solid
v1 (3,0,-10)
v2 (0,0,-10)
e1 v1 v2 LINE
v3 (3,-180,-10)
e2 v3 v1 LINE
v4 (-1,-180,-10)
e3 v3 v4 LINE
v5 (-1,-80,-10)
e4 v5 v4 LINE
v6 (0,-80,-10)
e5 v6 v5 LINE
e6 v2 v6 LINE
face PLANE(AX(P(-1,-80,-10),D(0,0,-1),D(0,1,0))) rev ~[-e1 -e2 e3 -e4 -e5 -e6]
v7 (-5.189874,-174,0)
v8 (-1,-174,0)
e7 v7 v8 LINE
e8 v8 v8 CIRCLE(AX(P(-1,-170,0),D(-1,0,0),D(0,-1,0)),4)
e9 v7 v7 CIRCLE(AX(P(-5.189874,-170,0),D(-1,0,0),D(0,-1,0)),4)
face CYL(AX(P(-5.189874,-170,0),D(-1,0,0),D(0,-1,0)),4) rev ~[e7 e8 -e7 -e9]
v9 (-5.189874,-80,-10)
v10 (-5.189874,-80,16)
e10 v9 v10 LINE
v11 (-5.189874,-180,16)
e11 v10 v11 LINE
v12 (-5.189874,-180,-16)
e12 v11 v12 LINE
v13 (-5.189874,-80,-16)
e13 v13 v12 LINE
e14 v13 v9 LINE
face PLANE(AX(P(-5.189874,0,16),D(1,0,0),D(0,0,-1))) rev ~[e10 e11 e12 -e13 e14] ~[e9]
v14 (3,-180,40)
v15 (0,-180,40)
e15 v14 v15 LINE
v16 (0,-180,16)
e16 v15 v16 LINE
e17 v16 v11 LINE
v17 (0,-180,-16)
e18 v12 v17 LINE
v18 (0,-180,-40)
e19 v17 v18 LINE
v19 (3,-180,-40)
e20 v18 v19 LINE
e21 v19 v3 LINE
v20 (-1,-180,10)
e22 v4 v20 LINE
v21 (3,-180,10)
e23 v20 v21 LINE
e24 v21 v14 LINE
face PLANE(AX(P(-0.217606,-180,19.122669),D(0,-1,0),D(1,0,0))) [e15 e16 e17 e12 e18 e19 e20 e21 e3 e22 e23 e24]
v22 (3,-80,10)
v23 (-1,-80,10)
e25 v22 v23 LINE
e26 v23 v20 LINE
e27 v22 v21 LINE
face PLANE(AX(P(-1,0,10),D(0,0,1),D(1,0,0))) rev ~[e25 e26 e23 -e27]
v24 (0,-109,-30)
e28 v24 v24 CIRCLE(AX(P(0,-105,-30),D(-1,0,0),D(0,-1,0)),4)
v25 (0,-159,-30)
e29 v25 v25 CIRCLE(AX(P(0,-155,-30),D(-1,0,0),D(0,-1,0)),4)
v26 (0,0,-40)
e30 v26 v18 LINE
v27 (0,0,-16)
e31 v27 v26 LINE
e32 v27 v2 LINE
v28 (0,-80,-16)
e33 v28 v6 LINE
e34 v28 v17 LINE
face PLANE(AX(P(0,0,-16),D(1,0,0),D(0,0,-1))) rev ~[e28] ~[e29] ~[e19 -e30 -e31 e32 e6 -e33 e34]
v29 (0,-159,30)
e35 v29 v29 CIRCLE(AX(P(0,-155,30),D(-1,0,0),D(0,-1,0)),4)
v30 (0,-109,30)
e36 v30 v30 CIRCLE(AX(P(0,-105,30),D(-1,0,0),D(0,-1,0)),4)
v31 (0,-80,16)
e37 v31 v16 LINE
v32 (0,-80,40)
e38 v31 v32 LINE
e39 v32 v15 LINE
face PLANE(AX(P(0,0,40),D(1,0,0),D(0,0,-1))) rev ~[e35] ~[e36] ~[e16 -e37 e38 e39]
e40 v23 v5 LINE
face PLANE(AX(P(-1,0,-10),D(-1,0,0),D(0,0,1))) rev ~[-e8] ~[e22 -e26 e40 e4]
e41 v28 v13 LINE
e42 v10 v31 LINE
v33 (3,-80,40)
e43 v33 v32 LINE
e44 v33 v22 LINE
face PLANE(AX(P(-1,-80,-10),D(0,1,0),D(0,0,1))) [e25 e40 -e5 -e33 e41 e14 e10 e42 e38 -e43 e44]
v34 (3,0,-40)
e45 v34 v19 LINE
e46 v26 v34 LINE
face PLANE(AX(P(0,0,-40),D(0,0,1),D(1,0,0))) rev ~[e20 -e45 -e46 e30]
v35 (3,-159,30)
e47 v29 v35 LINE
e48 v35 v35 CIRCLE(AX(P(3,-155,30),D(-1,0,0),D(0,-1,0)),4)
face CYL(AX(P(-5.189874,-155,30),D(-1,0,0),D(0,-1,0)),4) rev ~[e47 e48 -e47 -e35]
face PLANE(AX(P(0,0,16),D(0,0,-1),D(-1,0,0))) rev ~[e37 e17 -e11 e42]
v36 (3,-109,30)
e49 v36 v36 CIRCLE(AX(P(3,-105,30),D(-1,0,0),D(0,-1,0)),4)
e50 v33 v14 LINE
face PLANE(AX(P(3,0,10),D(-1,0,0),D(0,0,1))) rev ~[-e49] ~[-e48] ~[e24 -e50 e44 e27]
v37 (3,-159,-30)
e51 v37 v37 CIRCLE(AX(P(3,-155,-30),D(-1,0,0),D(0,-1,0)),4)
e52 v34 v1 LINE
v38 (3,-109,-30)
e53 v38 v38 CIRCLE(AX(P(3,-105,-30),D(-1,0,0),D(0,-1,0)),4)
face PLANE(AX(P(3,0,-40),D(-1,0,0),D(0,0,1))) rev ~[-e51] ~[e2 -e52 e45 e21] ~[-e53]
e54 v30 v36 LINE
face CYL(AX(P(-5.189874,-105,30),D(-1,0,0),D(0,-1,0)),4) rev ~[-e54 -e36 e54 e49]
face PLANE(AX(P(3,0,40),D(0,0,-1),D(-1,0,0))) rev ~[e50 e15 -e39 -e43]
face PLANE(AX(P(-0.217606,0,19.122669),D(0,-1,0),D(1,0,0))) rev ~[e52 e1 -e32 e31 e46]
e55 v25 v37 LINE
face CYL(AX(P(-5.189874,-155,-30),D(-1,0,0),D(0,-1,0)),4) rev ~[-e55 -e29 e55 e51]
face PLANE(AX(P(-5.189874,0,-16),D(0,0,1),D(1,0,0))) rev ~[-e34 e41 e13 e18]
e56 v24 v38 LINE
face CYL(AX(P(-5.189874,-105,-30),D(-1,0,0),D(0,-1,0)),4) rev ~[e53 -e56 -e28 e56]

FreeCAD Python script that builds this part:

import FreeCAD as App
import Part
import Sketcher

doc = App.newDocument("Part")
body = doc.addObject("PartDesign::Body", "Body")

sketch1 = doc.addObject("Sketcher::SketchObject", "Sketch")
body.addObject(sketch1)
sketch1.AttachmentSupport = (doc.XZ_Plane, [""])
sketch1.MapMode = "FlatFace"
sketch1.addGeometry(Part.LineSegment(App.Vector(3, 40, 0), App.Vector(0, 40, 0)), False)
sketch1.addGeometry(Part.LineSegment(App.Vector(0, 40, 0), App.Vector(0, 16, 0)), False)
sketch1.addGeometry(Part.LineSegment(App.Vector(0, 16, 0), App.Vector(-5.2, 16, 0)), False)
sketch1.addGeometry(Part.LineSegment(App.Vector(-5.2, 16, 0), App.Vector(-5.2, -16, 0)), False)
sketch1.addGeometry(Part.LineSegment(App.Vector(-5.2, -16, 0), App.Vector(0, -16, 0)), False)
sketch1.addGeometry(Part.LineSegment(App.Vector(0, -16, 0), App.Vector(0, -40, 0)), False)
sketch1.addGeometry(Part.LineSegment(App.Vector(0, -40, 0), App.Vector(3, -40, 0)), False)
sketch1.addGeometry(Part.LineSegment(App.Vector(3, -40, 0), App.Vector(3, -10, 0)), False)
sketch1.addGeometry(Part.LineSegment(App.Vector(3, -10, 0), App.Vector(-1, -10, 0)), False)
sketch1.addGeometry(Part.LineSegment(App.Vector(-1, -10, 0), App.Vector(-1, 10, 0)), False)
sketch1.addGeometry(Part.LineSegment(App.Vector(-1, 10, 0), App.Vector(3, 10, 0)), False)
sketch1.addGeometry(Part.LineSegment(App.Vector(3, 10, 0), App.Vector(3, 40, 0)), False)
sketch1.addConstraint(Sketcher.Constraint("Coincident", 0, 2, 1, 1))
sketch1.addConstraint(Sketcher.Constraint("Coincident", 1, 2, 2, 1))
sketch1.addConstraint(Sketcher.Constraint("Coincident", 2, 2, 3, 1))
sketch1.addConstraint(Sketcher.Constraint("Coincident", 3, 2, 4, 1))
sketch1.addConstraint(Sketcher.Constraint("Coincident", 4, 2, 5, 1))
sketch1.addConstraint(Sketcher.Constraint("Coincident", 5, 2, 6, 1))
sketch1.addConstraint(Sketcher.Constraint("Coincident", 6, 2, 7, 1))
sketch1.addConstraint(Sketcher.Constraint("Coincident", 7, 2, 8, 1))
sketch1.addConstraint(Sketcher.Constraint("Coincident", 8, 2, 9, 1))
sketch1.addConstraint(Sketcher.Constraint("Coincident", 9, 2, 10, 1))
sketch1.addConstraint(Sketcher.Constraint("Coincident", 10, 2, 11, 1))
sketch1.addConstraint(Sketcher.Constraint("Coincident", 11, 2, 0, 1))
sketch1.addConstraint(Sketcher.Constraint("Horizontal", 0))
sketch1.addConstraint(Sketcher.Constraint("Vertical", 1))
sketch1.addConstraint(Sketcher.Constraint("Horizontal", 2))
sketch1.addConstraint(Sketcher.Constraint("Vertical", 3))
sketch1.addConstraint(Sketcher.Constraint("Horizontal", 4))
sketch1.addConstraint(Sketcher.Constraint("Vertical", 5))
sketch1.addConstraint(Sketcher.Constraint("Horizontal", 6))
sketch1.addConstraint(Sketcher.Constraint("Vertical", 7))
sketch1.addConstraint(Sketcher.Constraint("Horizontal", 8))
sketch1.addConstraint(Sketcher.Constraint("Vertical", 9))
sketch1.addConstraint(Sketcher.Constraint("Horizontal", 10))
sketch1.addConstraint(Sketcher.Constraint("Vertical", 11))
sketch1.addConstraint(Sketcher.Constraint("Symmetric", 1, 2, 4, 2, -1, 1))
sketch1.addConstraint(Sketcher.Constraint("Symmetric", 0, 2, 5, 2, -1))
sketch1.addConstraint(Sketcher.Constraint("Symmetric", 7, 2, 10, 2, -1))
sketch1.addConstraint(Sketcher.Constraint("DistanceX", 0, 2, 0, 1, 3.0))
sketch1.addConstraint(Sketcher.Constraint("DistanceX", 8, 2, 8, 1, 4.0))
sketch1.addConstraint(Sketcher.Constraint("DistanceY", 1, 2, 1, 1, 24.0))
sketch1.addConstraint(Sketcher.Constraint("DistanceY", 3, 2, 3, 1, 32.0))
sketch1.addConstraint(Sketcher.Constraint("DistanceY", 7, 1, 7, 2, 30.0))
sketch1.addConstraint(Sketcher.Constraint("DistanceX", 2, 2, 2, 1, 5.189874))
pad1 = doc.addObject("PartDesign::Pad", "Pad")
body.addObject(pad1)
pad1.Profile = sketch1
pad1.Length = 180

sketch2 = doc.addObject("Sketcher::SketchObject", "Sketch001")
body.addObject(sketch2)
sketch2.AttachmentSupport = (doc.YZ_Plane, [""])
sketch2.MapMode = "FlatFace"
sketch2.AttachmentOffset = App.Placement(App.Vector(0, 0, -5.189874), App.Rotation())
sketch2.addGeometry(Part.Circle(App.Vector(-170, 0, 0), App.Vector(0, 0, 1), 4), False)
sketch2.addGeometry(Part.Circle(App.Vector(-155, 30, 0), App.Vector(0, 0, 1), 4), False)
sketch2.addGeometry(Part.Circle(App.Vector(-105, 30, 0), App.Vector(0, 0, 1), 4), False)
sketch2.addGeometry(Part.Circle(App.Vector(-155, -30, 0), App.Vector(0, 0, 1), 4), False)
sketch2.addGeometry(Part.Circle(App.Vector(-105, -30, 0), App.Vector(0, 0, 1), 4), False)
sketch2.addConstraint(Sketcher.Constraint("Equal", 0, 1))
sketch2.addConstraint(Sketcher.Constraint("Equal", 1, 2))
sketch2.addConstraint(Sketcher.Constraint("Equal", 2, 3))
sketch2.addConstraint(Sketcher.Constraint("Equal", 3, 4))
sketch2.addConstraint(Sketcher.Constraint("Symmetric", 1, 3, 3, 3, -1))
sketch2.addConstraint(Sketcher.Constraint("Symmetric", 2, 3, 4, 3, -1))
sketch2.addConstraint(Sketcher.Constraint("PointOnObject", 0, 3, -1))
sketch2.addConstraint(Sketcher.Constraint("Horizontal", 1, 3, 2, 3))
sketch2.addConstraint(Sketcher.Constraint("Diameter", 0, 8.0))
sketch2.addConstraint(Sketcher.Constraint("DistanceX", 0, 3, -1, 1, 170.0))
sketch2.addConstraint(Sketcher.Constraint("DistanceX", 1, 3, -1, 1, 155.0))
sketch2.addConstraint(Sketcher.Constraint("DistanceY", -1, 1, 1, 3, 30.0))
sketch2.addConstraint(Sketcher.Constraint("DistanceX", 2, 3, -1, 1, 105.0))
pocket1 = doc.addObject("PartDesign::Pocket", "Pocket")
body.addObject(pocket1)
pocket1.Profile = sketch2
pocket1.Length = 25
pocket1.Reversed = True

sketch3 = doc.addObject("Sketcher::SketchObject", "Sketch002")
body.addObject(sketch3)
sketch3.AttachmentSupport = (doc.YZ_Plane, [""])
sketch3.MapMode = "FlatFace"
sketch3.AttachmentOffset = App.Placement(App.Vector(0, 0, -1), App.Rotation())
sketch3.addGeometry(Part.LineSegment(App.Vector(-80, 40, 0), App.Vector(-80, -10, 0)), False)
sketch3.addGeometry(Part.LineSegment(App.Vector(-80, -10, 0), App.Vector(0, -10, 0)), False)
sketch3.addGeometry(Part.LineSegment(App.Vector(0, -10, 0), App.Vector(0, 40, 0)), False)
sketch3.addGeometry(Part.LineSegment(App.Vector(0, 40, 0), App.Vector(-80, 40, 0)), False)
sketch3.addConstraint(Sketcher.Constraint("Coincident", 0, 2, 1, 1))
sketch3.addConstraint(Sketcher.Constraint("Coincident", 1, 2, 2, 1))
sketch3.addConstraint(Sketcher.Constraint("Coincident", 2, 2, 3, 1))
sketch3.addConstraint(Sketcher.Constraint("Coincident", 3, 2, 0, 1))
sketch3.addConstraint(Sketcher.Constraint("Vertical", 0))
sketch3.addConstraint(Sketcher.Constraint("Horizontal", 1))
sketch3.addConstraint(Sketcher.Constraint("Vertical", 2))
sketch3.addConstraint(Sketcher.Constraint("Horizontal", 3))
sketch3.addConstraint(Sketcher.Constraint("PointOnObject", 1, 2, -2))
sketch3.addConstraint(Sketcher.Constraint("DistanceX", 1, 1, 1, 2, 80.0))
sketch3.addConstraint(Sketcher.Constraint("DistanceY", 0, 2, 0, 1, 50.0))
sketch3.addConstraint(Sketcher.Constraint("DistanceY", 0, 2, -1, 1, 10.0))
pocket2 = doc.addObject("PartDesign::Pocket", "Pocket001")
body.addObject(pocket2)
pocket2.Profile = sketch3
pocket2.Length = 25
pocket2.Midplane = True

sketch4 = doc.addObject("Sketcher::SketchObject", "Sketch003")
body.addObject(sketch4)
sketch4.AttachmentSupport = (doc.XZ_Plane, [""])
sketch4.MapMode = "FlatFace"
sketch4.addGeometry(Part.LineSegment(App.Vector(0, -10, 0), App.Vector(0, -16, 0)), False)
sketch4.addGeometry(Part.LineSegment(App.Vector(0, -16, 0), App.Vector(-5, -16, 0)), False)
sketch4.addGeometry(Part.LineSegment(App.Vector(-5, -16, 0), App.Vector(-5, -10, 0)), False)
sketch4.addGeometry(Part.LineSegment(App.Vector(-5, -10, 0), App.Vector(0, -10, 0)), False)
sketch4.addConstraint(Sketcher.Constraint("Coincident", 0, 2, 1, 1))
sketch4.addConstraint(Sketcher.Constraint("Coincident", 1, 2, 2, 1))
sketch4.addConstraint(Sketcher.Constraint("Coincident", 2, 2, 3, 1))
sketch4.addConstraint(Sketcher.Constraint("Coincident", 3, 2, 0, 1))
sketch4.addConstraint(Sketcher.Constraint("Vertical", 0))
sketch4.addConstraint(Sketcher.Constraint("Horizontal", 1))
sketch4.addConstraint(Sketcher.Constraint("Vertical", 2))
sketch4.addConstraint(Sketcher.Constraint("Horizontal", 3))
sketch4.addConstraint(Sketcher.Constraint("PointOnObject", 0, 2, -2))
sketch4.addConstraint(Sketcher.Constraint("DistanceY", 0, 2, 0, 1, 6.0))
sketch4.addConstraint(Sketcher.Constraint("DistanceY", 0, 2, -1, 1, 16.0))
sketch4.addConstraint(Sketcher.Constraint("DistanceX", 1, 2, 1, 1, 5.189874))
pocket3 = doc.addObject("PartDesign::Pocket", "Pocket002")
body.addObject(pocket3)
pocket3.Profile = sketch4
pocket3.Length = 80
pocket3.Reversed = True

doc.recompute()
